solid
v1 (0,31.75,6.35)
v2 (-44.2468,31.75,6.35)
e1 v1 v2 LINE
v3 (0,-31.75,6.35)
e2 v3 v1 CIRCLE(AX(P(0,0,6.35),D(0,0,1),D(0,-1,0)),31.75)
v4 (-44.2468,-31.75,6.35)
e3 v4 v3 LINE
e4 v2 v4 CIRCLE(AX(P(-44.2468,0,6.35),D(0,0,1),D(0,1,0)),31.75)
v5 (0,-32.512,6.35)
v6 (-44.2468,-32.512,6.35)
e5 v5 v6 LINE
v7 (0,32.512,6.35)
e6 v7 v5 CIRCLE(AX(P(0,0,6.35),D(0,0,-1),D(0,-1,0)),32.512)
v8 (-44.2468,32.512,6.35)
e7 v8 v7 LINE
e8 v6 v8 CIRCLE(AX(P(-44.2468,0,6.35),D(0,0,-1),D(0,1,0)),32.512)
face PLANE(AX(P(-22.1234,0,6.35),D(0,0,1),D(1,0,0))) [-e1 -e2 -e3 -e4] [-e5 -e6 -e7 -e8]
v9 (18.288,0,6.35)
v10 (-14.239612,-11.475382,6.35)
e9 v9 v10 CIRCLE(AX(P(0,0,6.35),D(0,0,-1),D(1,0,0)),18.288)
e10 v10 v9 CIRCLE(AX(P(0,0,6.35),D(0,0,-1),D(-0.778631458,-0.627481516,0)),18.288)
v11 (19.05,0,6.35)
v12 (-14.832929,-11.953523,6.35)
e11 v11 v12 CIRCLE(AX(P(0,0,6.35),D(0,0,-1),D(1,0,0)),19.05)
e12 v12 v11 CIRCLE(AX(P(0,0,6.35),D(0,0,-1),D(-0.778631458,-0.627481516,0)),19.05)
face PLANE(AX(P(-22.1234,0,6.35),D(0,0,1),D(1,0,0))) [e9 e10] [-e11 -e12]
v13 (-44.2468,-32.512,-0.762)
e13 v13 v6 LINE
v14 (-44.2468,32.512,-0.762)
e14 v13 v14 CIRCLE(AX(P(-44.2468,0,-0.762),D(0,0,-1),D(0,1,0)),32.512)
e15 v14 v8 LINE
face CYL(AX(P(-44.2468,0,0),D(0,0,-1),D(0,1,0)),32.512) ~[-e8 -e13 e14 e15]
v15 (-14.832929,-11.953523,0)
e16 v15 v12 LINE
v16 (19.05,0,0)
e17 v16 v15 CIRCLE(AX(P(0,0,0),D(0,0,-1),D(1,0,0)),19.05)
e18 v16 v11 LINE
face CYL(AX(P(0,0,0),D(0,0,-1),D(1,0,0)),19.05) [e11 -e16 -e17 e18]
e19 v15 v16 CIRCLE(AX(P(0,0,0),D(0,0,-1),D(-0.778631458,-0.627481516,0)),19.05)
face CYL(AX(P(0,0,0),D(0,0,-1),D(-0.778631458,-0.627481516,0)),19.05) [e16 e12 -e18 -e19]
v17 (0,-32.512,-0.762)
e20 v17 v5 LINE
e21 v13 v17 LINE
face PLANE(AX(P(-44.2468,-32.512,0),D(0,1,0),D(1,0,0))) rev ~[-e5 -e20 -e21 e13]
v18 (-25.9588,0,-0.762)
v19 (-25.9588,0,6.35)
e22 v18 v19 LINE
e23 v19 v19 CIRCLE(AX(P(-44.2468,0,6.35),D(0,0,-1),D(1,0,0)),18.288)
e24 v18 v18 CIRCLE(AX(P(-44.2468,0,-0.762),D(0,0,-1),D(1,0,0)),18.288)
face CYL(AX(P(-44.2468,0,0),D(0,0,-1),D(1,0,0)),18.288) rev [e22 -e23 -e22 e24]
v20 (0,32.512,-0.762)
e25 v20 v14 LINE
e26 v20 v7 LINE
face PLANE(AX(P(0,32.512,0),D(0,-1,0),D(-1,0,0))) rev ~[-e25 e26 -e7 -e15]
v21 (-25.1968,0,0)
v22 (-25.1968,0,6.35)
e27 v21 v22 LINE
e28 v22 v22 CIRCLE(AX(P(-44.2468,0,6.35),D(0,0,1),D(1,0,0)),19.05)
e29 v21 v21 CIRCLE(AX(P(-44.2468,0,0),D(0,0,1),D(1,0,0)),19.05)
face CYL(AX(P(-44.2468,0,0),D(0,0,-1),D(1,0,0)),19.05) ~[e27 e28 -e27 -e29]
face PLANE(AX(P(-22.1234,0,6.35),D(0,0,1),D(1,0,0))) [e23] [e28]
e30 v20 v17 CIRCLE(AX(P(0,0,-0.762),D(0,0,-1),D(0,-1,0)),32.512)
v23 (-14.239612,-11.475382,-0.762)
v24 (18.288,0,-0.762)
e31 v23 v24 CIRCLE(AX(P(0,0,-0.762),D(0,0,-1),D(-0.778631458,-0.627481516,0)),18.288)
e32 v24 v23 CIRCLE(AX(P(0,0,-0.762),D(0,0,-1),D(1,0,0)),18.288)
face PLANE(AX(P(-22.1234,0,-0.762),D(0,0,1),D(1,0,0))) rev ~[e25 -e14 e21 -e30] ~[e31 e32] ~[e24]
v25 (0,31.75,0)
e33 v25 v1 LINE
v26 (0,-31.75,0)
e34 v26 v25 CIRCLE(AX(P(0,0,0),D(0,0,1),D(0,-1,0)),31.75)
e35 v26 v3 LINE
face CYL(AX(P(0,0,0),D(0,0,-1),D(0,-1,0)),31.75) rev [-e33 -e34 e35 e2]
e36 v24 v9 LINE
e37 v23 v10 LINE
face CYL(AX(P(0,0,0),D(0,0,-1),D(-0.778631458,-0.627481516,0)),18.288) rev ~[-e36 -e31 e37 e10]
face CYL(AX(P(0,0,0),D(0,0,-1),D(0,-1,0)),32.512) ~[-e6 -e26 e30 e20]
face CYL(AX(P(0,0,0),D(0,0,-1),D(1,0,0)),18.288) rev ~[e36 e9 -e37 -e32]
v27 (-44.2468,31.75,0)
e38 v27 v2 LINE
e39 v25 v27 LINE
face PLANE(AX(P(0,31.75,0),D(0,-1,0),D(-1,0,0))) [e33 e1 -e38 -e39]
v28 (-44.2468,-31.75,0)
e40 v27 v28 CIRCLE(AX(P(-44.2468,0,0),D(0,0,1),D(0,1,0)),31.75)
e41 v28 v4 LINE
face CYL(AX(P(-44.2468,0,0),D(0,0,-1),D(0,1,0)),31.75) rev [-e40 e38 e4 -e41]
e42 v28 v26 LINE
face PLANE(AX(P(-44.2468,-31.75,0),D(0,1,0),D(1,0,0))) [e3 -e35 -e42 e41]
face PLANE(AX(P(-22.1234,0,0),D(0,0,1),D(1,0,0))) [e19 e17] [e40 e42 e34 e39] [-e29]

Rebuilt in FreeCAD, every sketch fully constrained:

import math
import FreeCAD as App
import Part
import Sketcher
from FreeCAD import Vector
Q = App.Units.Quantity


def faces_at(feature, points):
    """Names of the faces that lie closest to the given points."""
    faces = feature.Shape.Faces
    near = lambda p: min(range(len(faces)), key=lambda i: faces[i].distToShape(Part.Vertex(*p))[0])
    return sorted({f"Face{near(p) + 1}" for p in points})

doc = App.newDocument("Part")
body = doc.addObject("PartDesign::Body", "Body")

# Sketch on XY plane
sketch1 = doc.addObject("Sketcher::SketchObject", "Sketch")
body.addObject(sketch1)
sketch1.AttachmentSupport = (doc.XY_Plane, [""])
sketch1.MapMode = "FlatFace"
sketch1.addGeometry([
    Part.LineSegment(Vector(0, 32, 0), Vector(-44, 32, 0)),  # 0
    Part.ArcOfCircle(Part.Circle(Vector(-44, 0, 0), Vector(0, 0, 1), 32), math.radians(90), math.radians(270)),  # 1
    Part.LineSegment(Vector(-44, -32, 0), Vector(0, -32, 0)),  # 2
    Part.ArcOfCircle(Part.Circle(Vector(0, 0, 0), Vector(0, 0, 1), 32), math.radians(-90), math.radians(90)),  # 3
    Part.Circle(Vector(-44, 0, 0), Vector(0, 0, 1), 19),  # 4
    Part.ArcOfCircle(Part.Circle(Vector(0, 0, 0), Vector(0, 0, 1), 19), math.radians(-141), math.radians(0)),  # 5
    Part.ArcOfCircle(Part.Circle(Vector(0, 0, 0), Vector(0, 0, 1), 19), math.radians(0), math.radians(219)),  # 6
], False)
sketch1.addConstraint([
    Sketcher.Constraint("Tangent", 0, 2, 1, 1),
    Sketcher.Constraint("Tangent", 1, 2, 2, 1),
    Sketcher.Constraint("Tangent", 2, 2, 3, 1),
    Sketcher.Constraint("Tangent", 3, 2, 0, 1),
    Sketcher.Constraint("Tangent", 5, 1, 6, 2),
    Sketcher.Constraint("Coincident", 6, 1, 5, 2),
    Sketcher.Constraint("Horizontal", 0),
    Sketcher.Constraint("Horizontal", 2),
    Sketcher.Constraint("Coincident", 3, 3, -1, 1),
    Sketcher.Constraint("Coincident", 5, 3, -1, 1),
    Sketcher.Constraint("Coincident", 4, 3, 1, 3),
    Sketcher.Constraint("Equal", 4, 5),
    Sketcher.Constraint("PointOnObject", 6, 1, -1),
    Sketcher.Constraint("Diameter", 4, Q("1.5 in")),
    Sketcher.Constraint("Radius", 1, Q("1.25 in")),
    Sketcher.Constraint("DistanceX", 0, 2, 0, 1, Q("1.742 in")),
    Sketcher.Constraint("DistanceX", 5, 1, -1, 1, 14.832929),
])
pad1 = doc.addObject("PartDesign::Pad", "Pad")
body.addObject(pad1)
pad1.Profile = sketch1
pad1.Length = Q("0.25 in")
doc.recompute()

thickness = doc.addObject("PartDesign::Thickness", "Thickness")
body.addObject(thickness)
thickness.Base = (pad1, faces_at(pad1, [(-22.123, 0, 6.35)]))
thickness.Value = Q("0.03 in")
thickness.Reversed = False
thickness.Join = "Intersection"

doc.recompute()
